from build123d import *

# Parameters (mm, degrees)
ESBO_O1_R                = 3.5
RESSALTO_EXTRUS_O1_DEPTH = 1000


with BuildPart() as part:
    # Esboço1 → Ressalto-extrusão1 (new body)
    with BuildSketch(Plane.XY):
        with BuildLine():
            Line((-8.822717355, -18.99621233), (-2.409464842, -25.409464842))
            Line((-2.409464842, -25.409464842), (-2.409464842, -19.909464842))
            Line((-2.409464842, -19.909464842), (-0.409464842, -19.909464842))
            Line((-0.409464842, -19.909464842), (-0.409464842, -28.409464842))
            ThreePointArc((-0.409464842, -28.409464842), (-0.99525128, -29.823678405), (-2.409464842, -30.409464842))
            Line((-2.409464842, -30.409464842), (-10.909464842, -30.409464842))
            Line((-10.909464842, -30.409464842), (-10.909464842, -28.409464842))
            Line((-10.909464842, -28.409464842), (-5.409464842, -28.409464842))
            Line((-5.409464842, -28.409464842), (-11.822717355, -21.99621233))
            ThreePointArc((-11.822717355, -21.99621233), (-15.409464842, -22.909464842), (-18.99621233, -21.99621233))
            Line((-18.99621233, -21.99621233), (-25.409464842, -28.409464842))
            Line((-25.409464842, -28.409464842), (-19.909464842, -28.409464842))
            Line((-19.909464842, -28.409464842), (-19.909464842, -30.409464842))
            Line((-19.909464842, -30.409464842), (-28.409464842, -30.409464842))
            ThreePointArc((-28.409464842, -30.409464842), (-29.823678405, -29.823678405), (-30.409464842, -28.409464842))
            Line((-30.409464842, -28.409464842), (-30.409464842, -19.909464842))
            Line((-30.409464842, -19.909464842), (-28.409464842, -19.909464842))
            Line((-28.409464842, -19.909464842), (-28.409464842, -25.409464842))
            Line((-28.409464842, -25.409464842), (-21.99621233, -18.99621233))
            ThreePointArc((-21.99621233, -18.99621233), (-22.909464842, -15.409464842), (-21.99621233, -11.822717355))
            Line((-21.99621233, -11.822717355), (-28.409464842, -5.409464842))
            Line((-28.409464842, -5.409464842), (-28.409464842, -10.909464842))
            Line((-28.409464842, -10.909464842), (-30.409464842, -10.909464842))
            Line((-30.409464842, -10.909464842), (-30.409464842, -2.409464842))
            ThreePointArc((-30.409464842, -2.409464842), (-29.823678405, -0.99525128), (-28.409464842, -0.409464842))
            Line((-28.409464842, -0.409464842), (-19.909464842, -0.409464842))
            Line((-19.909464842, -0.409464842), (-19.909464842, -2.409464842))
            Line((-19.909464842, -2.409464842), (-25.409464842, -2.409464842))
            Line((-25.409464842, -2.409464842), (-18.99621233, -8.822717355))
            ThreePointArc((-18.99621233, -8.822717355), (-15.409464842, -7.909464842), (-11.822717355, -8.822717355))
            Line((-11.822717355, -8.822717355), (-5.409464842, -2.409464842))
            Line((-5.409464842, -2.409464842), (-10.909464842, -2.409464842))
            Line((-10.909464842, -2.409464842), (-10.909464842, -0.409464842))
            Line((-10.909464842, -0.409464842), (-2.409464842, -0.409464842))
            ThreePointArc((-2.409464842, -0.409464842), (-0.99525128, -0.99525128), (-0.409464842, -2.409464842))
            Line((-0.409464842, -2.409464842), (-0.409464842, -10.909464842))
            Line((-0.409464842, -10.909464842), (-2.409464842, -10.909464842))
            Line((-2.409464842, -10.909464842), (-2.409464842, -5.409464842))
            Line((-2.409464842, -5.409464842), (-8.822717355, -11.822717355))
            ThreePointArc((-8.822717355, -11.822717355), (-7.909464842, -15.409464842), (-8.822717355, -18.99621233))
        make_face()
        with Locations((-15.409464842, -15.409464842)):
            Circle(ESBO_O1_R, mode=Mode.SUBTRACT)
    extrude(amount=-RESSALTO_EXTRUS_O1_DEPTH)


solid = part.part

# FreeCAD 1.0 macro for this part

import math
import FreeCAD as App
import Part
import Sketcher
from FreeCAD import Vector
Q = App.Units.Quantity

doc = App.newDocument("Part")
body = doc.addObject("PartDesign::Body", "Body")

# Sketch on XY plane
sketch1 = body.newObject("Sketcher::SketchObject", "Sketch")
sketch1.AttachmentSupport = (doc.getObject("XY_Plane"), [""])
sketch1.MapMode = "FlatFace"
sketch1.addGeometry(Part.LineSegment(Vector(-2.4, -25.4, 0), Vector(-8.8, -19, 0)), False)
sketch1.addGeometry(Part.ArcOfCircle(Part.Circle(Vector(-15.4, -15.4, 0), Vector(0, 0, 1), 7.5), math.radians(-29), math.radians(29)), False)
sketch1.addGeometry(Part.LineSegment(Vector(-8.8, -11.8, 0), Vector(-2.4, -5.4, 0)), False)
sketch1.addGeometry(Part.LineSegment(Vector(-2.4, -5.4, 0), Vector(-2.4, -10.9, 0)), False)
sketch1.addGeometry(Part.LineSegment(Vector(-2.4, -10.9, 0), Vector(-0.4, -10.9, 0)), False)
sketch1.addGeometry(Part.LineSegment(Vector(-0.4, -10.9, 0), Vector(-0.4, -2.4, 0)), False)
sketch1.addGeometry(Part.ArcOfCircle(Part.Circle(Vector(-2.4, -2.4, 0), Vector(0, 0, 1), 2), math.radians(0), math.radians(90)), False)
sketch1.addGeometry(Part.LineSegment(Vector(-2.4, -0.4, 0), Vector(-10.9, -0.4, 0)), False)
sketch1.addGeometry(Part.LineSegment(Vector(-10.9, -0.4, 0), Vector(-10.9, -2.4, 0)), False)
sketch1.addGeometry(Part.LineSegment(Vector(-10.9, -2.4, 0), Vector(-5.4, -2.4, 0)), False)
sketch1.addGeometry(Part.LineSegment(Vector(-5.4, -2.4, 0), Vector(-11.8, -8.8, 0)), False)
sketch1.addGeometry(Part.ArcOfCircle(Part.Circle(Vector(-15.4, -15.4, 0), Vector(0, 0, 1), 7.5), math.radians(61), math.radians(119)), False)
sketch1.addGeometry(Part.LineSegment(Vector(-19, -8.8, 0), Vector(-25.4, -2.4, 0)), False)
sketch1.addGeometry(Part.LineSegment(Vector(-25.4, -2.4, 0), Vector(-19.9, -2.4, 0)), False)
sketch1.addGeometry(Part.LineSegment(Vector(-19.9, -2.4, 0), Vector(-19.9, -0.4, 0)), False)
sketch1.addGeometry(Part.LineSegment(Vector(-19.9, -0.4, 0), Vector(-28.4, -0.4, 0)), False)
sketch1.addGeometry(Part.ArcOfCircle(Part.Circle(Vector(-28.4, -2.4, 0), Vector(0, 0, 1), 2), math.radians(90), math.radians(180)), False)
sketch1.addGeometry(Part.LineSegment(Vector(-30.4, -2.4, 0), Vector(-30.4, -10.9, 0)), False)
sketch1.addGeometry(Part.LineSegment(Vector(-30.4, -10.9, 0), Vector(-28.4, -10.9, 0)), False)
sketch1.addGeometry(Part.LineSegment(Vector(-28.4, -10.9, 0), Vector(-28.4, -5.4, 0)), False)
sketch1.addGeometry(Part.LineSegment(Vector(-28.4, -5.4, 0), Vector(-22, -11.8, 0)), False)
sketch1.addGeometry(Part.ArcOfCircle(Part.Circle(Vector(-15.4, -15.4, 0), Vector(0, 0, 1), 7.5), math.radians(151), math.radians(209)), False)
sketch1.addGeometry(Part.LineSegment(Vector(-22, -19, 0), Vector(-28.4, -25.4, 0)), False)
sketch1.addGeometry(Part.LineSegment(Vector(-28.4, -25.4, 0), Vector(-28.4, -19.9, 0)), False)
sketch1.addGeometry(Part.LineSegment(Vector(-28.4, -19.9, 0), Vector(-30.4, -19.9, 0)), False)
sketch1.addGeometry(Part.LineSegment(Vector(-30.4, -19.9, 0), Vector(-30.4, -28.4, 0)), False)
sketch1.addGeometry(Part.ArcOfCircle(Part.Circle(Vector(-28.4, -28.4, 0), Vector(0, 0, 1), 2), math.radians(180), math.radians(270)), False)
sketch1.addGeometry(Part.LineSegment(Vector(-28.4, -30.4, 0), Vector(-19.9, -30.4, 0)), False)
sketch1.addGeometry(Part.LineSegment(Vector(-19.9, -30.4, 0), Vector(-19.9, -28.4, 0)), False)
sketch1.addGeometry(Part.LineSegment(Vector(-19.9, -28.4, 0), Vector(-25.4, -28.4, 0)), False)
sketch1.addGeometry(Part.LineSegment(Vector(-25.4, -28.4, 0), Vector(-19, -22, 0)), False)
sketch1.addGeometry(Part.ArcOfCircle(Part.Circle(Vector(-15.4, -15.4, 0), Vector(0, 0, 1), 7.5), math.radians(-119), math.radians(-61)), False)
sketch1.addGeometry(Part.LineSegment(Vector(-11.8, -22, 0), Vector(-5.4, -28.4, 0)), False)
sketch1.addGeometry(Part.LineSegment(Vector(-5.4, -28.4, 0), Vector(-10.9, -28.4, 0)), False)
sketch1.addGeometry(Part.LineSegment(Vector(-10.9, -28.4, 0), Vector(-10.9, -30.4, 0)), False)
sketch1.addGeometry(Part.LineSegment(Vector(-10.9, -30.4, 0), Vector(-2.4, -30.4, 0)), False)
sketch1.addGeometry(Part.ArcOfCircle(Part.Circle(Vector(-2.4, -28.4, 0), Vector(0, 0, 1), 2), math.radians(-90), math.radians(0)), False)
sketch1.addGeometry(Part.LineSegment(Vector(-0.4, -28.4, 0), Vector(-0.4, -19.9, 0)), False)
sketch1.addGeometry(Part.LineSegment(Vector(-0.4, -19.9, 0), Vector(-2.4, -19.9, 0)), False)
sketch1.addGeometry(Part.LineSegment(Vector(-2.4, -19.9, 0), Vector(-2.4, -25.4, 0)), False)
sketch1.addGeometry(Part.Circle(Vector(-15.4, -15.4, 0), Vector(0, 0, 1), 3.5), False)
sketch1.addConstraint(Sketcher.Constraint("Coincident", 0, 2, 1, 1))
sketch1.addConstraint(Sketcher.Constraint("Coincident", 1, 2, 2, 1))
sketch1.addConstraint(Sketcher.Constraint("Coincident", 2, 2, 3, 1))
sketch1.addConstraint(Sketcher.Constraint("Coincident", 3, 2, 4, 1))
sketch1.addConstraint(Sketcher.Constraint("Coincident", 4, 2, 5, 1))
sketch1.addConstraint(Sketcher.Constraint("Tangent", 5, 2, 6, 1))
sketch1.addConstraint(Sketcher.Constraint("Tangent", 6, 2, 7, 1))
sketch1.addConstraint(Sketcher.Constraint("Coincident", 7, 2, 8, 1))
sketch1.addConstraint(Sketcher.Constraint("Coincident", 8, 2, 9, 1))
sketch1.addConstraint(Sketcher.Constraint("Coincident", 9, 2, 10, 1))
sketch1.addConstraint(Sketcher.Constraint("Coincident", 10, 2, 11, 1))
sketch1.addConstraint(Sketcher.Constraint("Coincident", 11, 2, 12, 1))
sketch1.addConstraint(Sketcher.Constraint("Coincident", 12, 2, 13, 1))
sketch1.addConstraint(Sketcher.Constraint("Coincident", 13, 2, 14, 1))
sketch1.addConstraint(Sketcher.Constraint("Coincident", 14, 2, 15, 1))
sketch1.addConstraint(Sketcher.Constraint("Tangent", 15, 2, 16, 1))
sketch1.addConstraint(Sketcher.Constraint("Tangent", 16, 2, 17, 1))
sketch1.addConstraint(Sketcher.Constraint("Coincident", 17, 2, 18, 1))
sketch1.addConstraint(Sketcher.Constraint("Coincident", 18, 2, 19, 1))
sketch1.addConstraint(Sketcher.Constraint("Coincident", 19, 2, 20, 1))
sketch1.addConstraint(Sketcher.Constraint("Coincident", 20, 2, 21, 1))
sketch1.addConstraint(Sketcher.Constraint("Coincident", 21, 2, 22, 1))
sketch1.addConstraint(Sketcher.Constraint("Coincident", 22, 2, 23, 1))
sketch1.addConstraint(Sketcher.Constraint("Coincident", 23, 2, 24, 1))
sketch1.addConstraint(Sketcher.Constraint("Coincident", 24, 2, 25, 1))
sketch1.addConstraint(Sketcher.Constraint("Tangent", 25, 2, 26, 1))
sketch1.addConstraint(Sketcher.Constraint("Tangent", 26, 2, 27, 1))
sketch1.addConstraint(Sketcher.Constraint("Coincident", 27, 2, 28, 1))
sketch1.addConstraint(Sketcher.Constraint("Coincident", 28, 2, 29, 1))
sketch1.addConstraint(Sketcher.Constraint("Coincident", 29, 2, 30, 1))
sketch1.addConstraint(Sketcher.Constraint("Coincident", 30, 2, 31, 1))
sketch1.addConstraint(Sketcher.Constraint("Coincident", 31, 2, 32, 1))
sketch1.addConstraint(Sketcher.Constraint("Coincident", 32, 2, 33, 1))
sketch1.addConstraint(Sketcher.Constraint("Coincident", 33, 2, 34, 1))
sketch1.addConstraint(Sketcher.Constraint("Coincident", 34, 2, 35, 1))
sketch1.addConstraint(Sketcher.Constraint("Tangent", 35, 2, 36, 1))
sketch1.addConstraint(Sketcher.Constraint("Tangent", 36, 2, 37, 1))
sketch1.addConstraint(Sketcher.Constraint("Coincident", 37, 2, 38, 1))
sketch1.addConstraint(Sketcher.Constraint("Coincident", 38, 2, 39, 1))
sketch1.addConstraint(Sketcher.Constraint("Coincident", 39, 2, 0, 1))
sketch1.addConstraint(Sketcher.Constraint("Vertical", 3))
sketch1.addConstraint(Sketcher.Constraint("Horizontal", 4))
sketch1.addConstraint(Sketcher.Constraint("Vertical", 5))
sketch1.addConstraint(Sketcher.Constraint("Horizontal", 7))
sketch1.addConstraint(Sketcher.Constraint("Vertical", 8))
sketch1.addConstraint(Sketcher.Constraint("Horizontal", 9))
sketch1.addConstraint(Sketcher.Constraint("Horizontal", 13))
sketch1.addConstraint(Sketcher.Constraint("Vertical", 14))
sketch1.addConstraint(Sketcher.Constraint("Horizontal", 15))
sketch1.addConstraint(Sketcher.Constraint("Vertical", 17))
sketch1.addConstraint(Sketcher.Constraint("Horizontal", 18))
sketch1.addConstraint(Sketcher.Constraint("Vertical", 19))
sketch1.addConstraint(Sketcher.Constraint("Vertical", 23))
sketch1.addConstraint(Sketcher.Constraint("Horizontal", 24))
sketch1.addConstraint(Sketcher.Constraint("Vertical", 25))
sketch1.addConstraint(Sketcher.Constraint("Horizontal", 27))
sketch1.addConstraint(Sketcher.Constraint("Vertical", 28))
sketch1.addConstraint(Sketcher.Constraint("Horizontal", 29))
sketch1.addConstraint(Sketcher.Constraint("Horizontal", 33))
sketch1.addConstraint(Sketcher.Constraint("Vertical", 34))
sketch1.addConstraint(Sketcher.Constraint("Horizontal", 35))
sketch1.addConstraint(Sketcher.Constraint("Vertical", 37))
sketch1.addConstraint(Sketcher.Constraint("Horizontal", 38))
sketch1.addConstraint(Sketcher.Constraint("Vertical", 39))
sketch1.addConstraint(Sketcher.Constraint("Coincident", 11, 3, 1, 3))
sketch1.addConstraint(Sketcher.Constraint("Coincident", 21, 3, 1, 3))
sketch1.addConstraint(Sketcher.Constraint("Coincident", 31, 3, 1, 3))
sketch1.addConstraint(Sketcher.Constraint("Coincident", 40, 3, 1, 3))
sketch1.addConstraint(Sketcher.Constraint("Equal", 1, 11))
sketch1.addConstraint(Sketcher.Constraint("Equal", 6, 16))
sketch1.addConstraint(Sketcher.Constraint("Equal", 11, 21))
sketch1.addConstraint(Sketcher.Constraint("Equal", 16, 26))
sketch1.addConstraint(Sketcher.Constraint("Equal", 21, 31))
sketch1.addConstraint(Sketcher.Constraint("Equal", 26, 36))
sketch1.addConstraint(Sketcher.Constraint("Perpendicular", 0, 2))
sketch1.addConstraint(Sketcher.Constraint("Parallel", 2, 10))
sketch1.addConstraint(Sketcher.Constraint("Perpendicular", 10, 12))
sketch1.addConstraint(Sketcher.Constraint("Parallel", 12, 20))
sketch1.addConstraint(Sketcher.Constraint("Perpendicular", 20, 22))
sketch1.addConstraint(Sketcher.Constraint("Parallel", 22, 30))
sketch1.addConstraint(Sketcher.Constraint("Perpendicular", 30, 32))
sketch1.addConstraint(Sketcher.Constraint("Horizontal", 6, 3, 16, 3))
sketch1.addConstraint(Sketcher.Constraint("Horizontal", 26, 3, 36, 3))
sketch1.addConstraint(Sketcher.Constraint("Horizontal", 5, 2, 8, 2))
sketch1.addConstraint(Sketcher.Constraint("Horizontal", 10, 2, 11, 2))
sketch1.addConstraint(Sketcher.Constraint("Horizontal", 9, 2, 12, 2))
sketch1.addConstraint(Sketcher.Constraint("Horizontal", 4, 2, 17, 2))
sketch1.addConstraint(Sketcher.Constraint("Horizontal", 2, 2, 19, 2))
sketch1.addConstraint(Sketcher.Constraint("Horizontal", 1, 2, 20, 2))
sketch1.addConstraint(Sketcher.Constraint("Horizontal", 0, 2, 21, 2))
sketch1.addConstraint(Sketcher.Constraint("Horizontal", 25, 2, 28, 2))
sketch1.addConstraint(Sketcher.Constraint("Horizontal", 30, 2, 31, 2))
sketch1.addConstraint(Sketcher.Constraint("Horizontal", 29, 2, 32, 2))
sketch1.addConstraint(Sketcher.Constraint("Horizontal", 24, 2, 37, 2))
sketch1.addConstraint(Sketcher.Constraint("Horizontal", 22, 2, 39, 2))
sketch1.addConstraint(Sketcher.Constraint("Vertical", 16, 3, 26, 3))
sketch1.addConstraint(Sketcher.Constraint("Vertical", 6, 3, 36, 3))
sketch1.addConstraint(Sketcher.Constraint("Vertical", 0, 2, 1, 2))
sketch1.addConstraint(Sketcher.Constraint("Vertical", 36, 3, 2, 2))
sketch1.addConstraint(Sketcher.Constraint("Vertical", 15, 2, 18, 2))
sketch1.addConstraint(Sketcher.Constraint("Vertical", 19, 2, 22, 2))
sketch1.addConstraint(Sketcher.Constraint("Vertical", 14, 2, 27, 2))
sketch1.addConstraint(Sketcher.Constraint("Vertical", 12, 2, 29, 2))
sketch1.addConstraint(Sketcher.Constraint("Vertical", 11, 2, 30, 2))
sketch1.addConstraint(Sketcher.Constraint("Vertical", 9, 2, 32, 2))
sketch1.addConstraint(Sketcher.Constraint("Vertical", 8, 2, 33, 2))
sketch1.addConstraint(Sketcher.Constraint("Equal", 9, 13))
sketch1.addConstraint(Sketcher.Constraint("Equal", 33, 3))
sketch1.addConstraint(Sketcher.Constraint("Equal", 35, 5))
sketch1.addConstraint(Sketcher.Constraint("Equal", 19, 23))
sketch1.addConstraint(Sketcher.Constraint("Equal", 2, 10))
sketch1.addConstraint(Sketcher.Constraint("Diameter", 40, Q("7 mm")))
sketch1.addConstraint(Sketcher.Constraint("Radius", 6, Q("2 mm")))
sketch1.addConstraint(Sketcher.Constraint("Radius", 1, Q("7.5 mm")))
sketch1.addConstraint(Sketcher.Constraint("DistanceX", 7, 2, 7, 1, Q("8.5 mm")))
sketch1.addConstraint(Sketcher.Constraint("DistanceX", 9, 1, 9, 2, Q("5.5 mm")))
sketch1.addConstraint(Sketcher.Constraint("DistanceX", 1, 3, 6, 3, Q("13 mm")))
sketch1.addConstraint(Sketcher.Constraint("DistanceX", 1, 3, -1, 1, Q("15.409465 mm")))
sketch1.addConstraint(Sketcher.Constraint("DistanceY", 1, 3, -1, 1, Q("15.409465 mm")))
pad1 = body.newObject("PartDesign::Pad", "Pad")
pad1.Profile = sketch1
pad1.Length = 1000
pad1.Reversed = True

doc.recompute()
